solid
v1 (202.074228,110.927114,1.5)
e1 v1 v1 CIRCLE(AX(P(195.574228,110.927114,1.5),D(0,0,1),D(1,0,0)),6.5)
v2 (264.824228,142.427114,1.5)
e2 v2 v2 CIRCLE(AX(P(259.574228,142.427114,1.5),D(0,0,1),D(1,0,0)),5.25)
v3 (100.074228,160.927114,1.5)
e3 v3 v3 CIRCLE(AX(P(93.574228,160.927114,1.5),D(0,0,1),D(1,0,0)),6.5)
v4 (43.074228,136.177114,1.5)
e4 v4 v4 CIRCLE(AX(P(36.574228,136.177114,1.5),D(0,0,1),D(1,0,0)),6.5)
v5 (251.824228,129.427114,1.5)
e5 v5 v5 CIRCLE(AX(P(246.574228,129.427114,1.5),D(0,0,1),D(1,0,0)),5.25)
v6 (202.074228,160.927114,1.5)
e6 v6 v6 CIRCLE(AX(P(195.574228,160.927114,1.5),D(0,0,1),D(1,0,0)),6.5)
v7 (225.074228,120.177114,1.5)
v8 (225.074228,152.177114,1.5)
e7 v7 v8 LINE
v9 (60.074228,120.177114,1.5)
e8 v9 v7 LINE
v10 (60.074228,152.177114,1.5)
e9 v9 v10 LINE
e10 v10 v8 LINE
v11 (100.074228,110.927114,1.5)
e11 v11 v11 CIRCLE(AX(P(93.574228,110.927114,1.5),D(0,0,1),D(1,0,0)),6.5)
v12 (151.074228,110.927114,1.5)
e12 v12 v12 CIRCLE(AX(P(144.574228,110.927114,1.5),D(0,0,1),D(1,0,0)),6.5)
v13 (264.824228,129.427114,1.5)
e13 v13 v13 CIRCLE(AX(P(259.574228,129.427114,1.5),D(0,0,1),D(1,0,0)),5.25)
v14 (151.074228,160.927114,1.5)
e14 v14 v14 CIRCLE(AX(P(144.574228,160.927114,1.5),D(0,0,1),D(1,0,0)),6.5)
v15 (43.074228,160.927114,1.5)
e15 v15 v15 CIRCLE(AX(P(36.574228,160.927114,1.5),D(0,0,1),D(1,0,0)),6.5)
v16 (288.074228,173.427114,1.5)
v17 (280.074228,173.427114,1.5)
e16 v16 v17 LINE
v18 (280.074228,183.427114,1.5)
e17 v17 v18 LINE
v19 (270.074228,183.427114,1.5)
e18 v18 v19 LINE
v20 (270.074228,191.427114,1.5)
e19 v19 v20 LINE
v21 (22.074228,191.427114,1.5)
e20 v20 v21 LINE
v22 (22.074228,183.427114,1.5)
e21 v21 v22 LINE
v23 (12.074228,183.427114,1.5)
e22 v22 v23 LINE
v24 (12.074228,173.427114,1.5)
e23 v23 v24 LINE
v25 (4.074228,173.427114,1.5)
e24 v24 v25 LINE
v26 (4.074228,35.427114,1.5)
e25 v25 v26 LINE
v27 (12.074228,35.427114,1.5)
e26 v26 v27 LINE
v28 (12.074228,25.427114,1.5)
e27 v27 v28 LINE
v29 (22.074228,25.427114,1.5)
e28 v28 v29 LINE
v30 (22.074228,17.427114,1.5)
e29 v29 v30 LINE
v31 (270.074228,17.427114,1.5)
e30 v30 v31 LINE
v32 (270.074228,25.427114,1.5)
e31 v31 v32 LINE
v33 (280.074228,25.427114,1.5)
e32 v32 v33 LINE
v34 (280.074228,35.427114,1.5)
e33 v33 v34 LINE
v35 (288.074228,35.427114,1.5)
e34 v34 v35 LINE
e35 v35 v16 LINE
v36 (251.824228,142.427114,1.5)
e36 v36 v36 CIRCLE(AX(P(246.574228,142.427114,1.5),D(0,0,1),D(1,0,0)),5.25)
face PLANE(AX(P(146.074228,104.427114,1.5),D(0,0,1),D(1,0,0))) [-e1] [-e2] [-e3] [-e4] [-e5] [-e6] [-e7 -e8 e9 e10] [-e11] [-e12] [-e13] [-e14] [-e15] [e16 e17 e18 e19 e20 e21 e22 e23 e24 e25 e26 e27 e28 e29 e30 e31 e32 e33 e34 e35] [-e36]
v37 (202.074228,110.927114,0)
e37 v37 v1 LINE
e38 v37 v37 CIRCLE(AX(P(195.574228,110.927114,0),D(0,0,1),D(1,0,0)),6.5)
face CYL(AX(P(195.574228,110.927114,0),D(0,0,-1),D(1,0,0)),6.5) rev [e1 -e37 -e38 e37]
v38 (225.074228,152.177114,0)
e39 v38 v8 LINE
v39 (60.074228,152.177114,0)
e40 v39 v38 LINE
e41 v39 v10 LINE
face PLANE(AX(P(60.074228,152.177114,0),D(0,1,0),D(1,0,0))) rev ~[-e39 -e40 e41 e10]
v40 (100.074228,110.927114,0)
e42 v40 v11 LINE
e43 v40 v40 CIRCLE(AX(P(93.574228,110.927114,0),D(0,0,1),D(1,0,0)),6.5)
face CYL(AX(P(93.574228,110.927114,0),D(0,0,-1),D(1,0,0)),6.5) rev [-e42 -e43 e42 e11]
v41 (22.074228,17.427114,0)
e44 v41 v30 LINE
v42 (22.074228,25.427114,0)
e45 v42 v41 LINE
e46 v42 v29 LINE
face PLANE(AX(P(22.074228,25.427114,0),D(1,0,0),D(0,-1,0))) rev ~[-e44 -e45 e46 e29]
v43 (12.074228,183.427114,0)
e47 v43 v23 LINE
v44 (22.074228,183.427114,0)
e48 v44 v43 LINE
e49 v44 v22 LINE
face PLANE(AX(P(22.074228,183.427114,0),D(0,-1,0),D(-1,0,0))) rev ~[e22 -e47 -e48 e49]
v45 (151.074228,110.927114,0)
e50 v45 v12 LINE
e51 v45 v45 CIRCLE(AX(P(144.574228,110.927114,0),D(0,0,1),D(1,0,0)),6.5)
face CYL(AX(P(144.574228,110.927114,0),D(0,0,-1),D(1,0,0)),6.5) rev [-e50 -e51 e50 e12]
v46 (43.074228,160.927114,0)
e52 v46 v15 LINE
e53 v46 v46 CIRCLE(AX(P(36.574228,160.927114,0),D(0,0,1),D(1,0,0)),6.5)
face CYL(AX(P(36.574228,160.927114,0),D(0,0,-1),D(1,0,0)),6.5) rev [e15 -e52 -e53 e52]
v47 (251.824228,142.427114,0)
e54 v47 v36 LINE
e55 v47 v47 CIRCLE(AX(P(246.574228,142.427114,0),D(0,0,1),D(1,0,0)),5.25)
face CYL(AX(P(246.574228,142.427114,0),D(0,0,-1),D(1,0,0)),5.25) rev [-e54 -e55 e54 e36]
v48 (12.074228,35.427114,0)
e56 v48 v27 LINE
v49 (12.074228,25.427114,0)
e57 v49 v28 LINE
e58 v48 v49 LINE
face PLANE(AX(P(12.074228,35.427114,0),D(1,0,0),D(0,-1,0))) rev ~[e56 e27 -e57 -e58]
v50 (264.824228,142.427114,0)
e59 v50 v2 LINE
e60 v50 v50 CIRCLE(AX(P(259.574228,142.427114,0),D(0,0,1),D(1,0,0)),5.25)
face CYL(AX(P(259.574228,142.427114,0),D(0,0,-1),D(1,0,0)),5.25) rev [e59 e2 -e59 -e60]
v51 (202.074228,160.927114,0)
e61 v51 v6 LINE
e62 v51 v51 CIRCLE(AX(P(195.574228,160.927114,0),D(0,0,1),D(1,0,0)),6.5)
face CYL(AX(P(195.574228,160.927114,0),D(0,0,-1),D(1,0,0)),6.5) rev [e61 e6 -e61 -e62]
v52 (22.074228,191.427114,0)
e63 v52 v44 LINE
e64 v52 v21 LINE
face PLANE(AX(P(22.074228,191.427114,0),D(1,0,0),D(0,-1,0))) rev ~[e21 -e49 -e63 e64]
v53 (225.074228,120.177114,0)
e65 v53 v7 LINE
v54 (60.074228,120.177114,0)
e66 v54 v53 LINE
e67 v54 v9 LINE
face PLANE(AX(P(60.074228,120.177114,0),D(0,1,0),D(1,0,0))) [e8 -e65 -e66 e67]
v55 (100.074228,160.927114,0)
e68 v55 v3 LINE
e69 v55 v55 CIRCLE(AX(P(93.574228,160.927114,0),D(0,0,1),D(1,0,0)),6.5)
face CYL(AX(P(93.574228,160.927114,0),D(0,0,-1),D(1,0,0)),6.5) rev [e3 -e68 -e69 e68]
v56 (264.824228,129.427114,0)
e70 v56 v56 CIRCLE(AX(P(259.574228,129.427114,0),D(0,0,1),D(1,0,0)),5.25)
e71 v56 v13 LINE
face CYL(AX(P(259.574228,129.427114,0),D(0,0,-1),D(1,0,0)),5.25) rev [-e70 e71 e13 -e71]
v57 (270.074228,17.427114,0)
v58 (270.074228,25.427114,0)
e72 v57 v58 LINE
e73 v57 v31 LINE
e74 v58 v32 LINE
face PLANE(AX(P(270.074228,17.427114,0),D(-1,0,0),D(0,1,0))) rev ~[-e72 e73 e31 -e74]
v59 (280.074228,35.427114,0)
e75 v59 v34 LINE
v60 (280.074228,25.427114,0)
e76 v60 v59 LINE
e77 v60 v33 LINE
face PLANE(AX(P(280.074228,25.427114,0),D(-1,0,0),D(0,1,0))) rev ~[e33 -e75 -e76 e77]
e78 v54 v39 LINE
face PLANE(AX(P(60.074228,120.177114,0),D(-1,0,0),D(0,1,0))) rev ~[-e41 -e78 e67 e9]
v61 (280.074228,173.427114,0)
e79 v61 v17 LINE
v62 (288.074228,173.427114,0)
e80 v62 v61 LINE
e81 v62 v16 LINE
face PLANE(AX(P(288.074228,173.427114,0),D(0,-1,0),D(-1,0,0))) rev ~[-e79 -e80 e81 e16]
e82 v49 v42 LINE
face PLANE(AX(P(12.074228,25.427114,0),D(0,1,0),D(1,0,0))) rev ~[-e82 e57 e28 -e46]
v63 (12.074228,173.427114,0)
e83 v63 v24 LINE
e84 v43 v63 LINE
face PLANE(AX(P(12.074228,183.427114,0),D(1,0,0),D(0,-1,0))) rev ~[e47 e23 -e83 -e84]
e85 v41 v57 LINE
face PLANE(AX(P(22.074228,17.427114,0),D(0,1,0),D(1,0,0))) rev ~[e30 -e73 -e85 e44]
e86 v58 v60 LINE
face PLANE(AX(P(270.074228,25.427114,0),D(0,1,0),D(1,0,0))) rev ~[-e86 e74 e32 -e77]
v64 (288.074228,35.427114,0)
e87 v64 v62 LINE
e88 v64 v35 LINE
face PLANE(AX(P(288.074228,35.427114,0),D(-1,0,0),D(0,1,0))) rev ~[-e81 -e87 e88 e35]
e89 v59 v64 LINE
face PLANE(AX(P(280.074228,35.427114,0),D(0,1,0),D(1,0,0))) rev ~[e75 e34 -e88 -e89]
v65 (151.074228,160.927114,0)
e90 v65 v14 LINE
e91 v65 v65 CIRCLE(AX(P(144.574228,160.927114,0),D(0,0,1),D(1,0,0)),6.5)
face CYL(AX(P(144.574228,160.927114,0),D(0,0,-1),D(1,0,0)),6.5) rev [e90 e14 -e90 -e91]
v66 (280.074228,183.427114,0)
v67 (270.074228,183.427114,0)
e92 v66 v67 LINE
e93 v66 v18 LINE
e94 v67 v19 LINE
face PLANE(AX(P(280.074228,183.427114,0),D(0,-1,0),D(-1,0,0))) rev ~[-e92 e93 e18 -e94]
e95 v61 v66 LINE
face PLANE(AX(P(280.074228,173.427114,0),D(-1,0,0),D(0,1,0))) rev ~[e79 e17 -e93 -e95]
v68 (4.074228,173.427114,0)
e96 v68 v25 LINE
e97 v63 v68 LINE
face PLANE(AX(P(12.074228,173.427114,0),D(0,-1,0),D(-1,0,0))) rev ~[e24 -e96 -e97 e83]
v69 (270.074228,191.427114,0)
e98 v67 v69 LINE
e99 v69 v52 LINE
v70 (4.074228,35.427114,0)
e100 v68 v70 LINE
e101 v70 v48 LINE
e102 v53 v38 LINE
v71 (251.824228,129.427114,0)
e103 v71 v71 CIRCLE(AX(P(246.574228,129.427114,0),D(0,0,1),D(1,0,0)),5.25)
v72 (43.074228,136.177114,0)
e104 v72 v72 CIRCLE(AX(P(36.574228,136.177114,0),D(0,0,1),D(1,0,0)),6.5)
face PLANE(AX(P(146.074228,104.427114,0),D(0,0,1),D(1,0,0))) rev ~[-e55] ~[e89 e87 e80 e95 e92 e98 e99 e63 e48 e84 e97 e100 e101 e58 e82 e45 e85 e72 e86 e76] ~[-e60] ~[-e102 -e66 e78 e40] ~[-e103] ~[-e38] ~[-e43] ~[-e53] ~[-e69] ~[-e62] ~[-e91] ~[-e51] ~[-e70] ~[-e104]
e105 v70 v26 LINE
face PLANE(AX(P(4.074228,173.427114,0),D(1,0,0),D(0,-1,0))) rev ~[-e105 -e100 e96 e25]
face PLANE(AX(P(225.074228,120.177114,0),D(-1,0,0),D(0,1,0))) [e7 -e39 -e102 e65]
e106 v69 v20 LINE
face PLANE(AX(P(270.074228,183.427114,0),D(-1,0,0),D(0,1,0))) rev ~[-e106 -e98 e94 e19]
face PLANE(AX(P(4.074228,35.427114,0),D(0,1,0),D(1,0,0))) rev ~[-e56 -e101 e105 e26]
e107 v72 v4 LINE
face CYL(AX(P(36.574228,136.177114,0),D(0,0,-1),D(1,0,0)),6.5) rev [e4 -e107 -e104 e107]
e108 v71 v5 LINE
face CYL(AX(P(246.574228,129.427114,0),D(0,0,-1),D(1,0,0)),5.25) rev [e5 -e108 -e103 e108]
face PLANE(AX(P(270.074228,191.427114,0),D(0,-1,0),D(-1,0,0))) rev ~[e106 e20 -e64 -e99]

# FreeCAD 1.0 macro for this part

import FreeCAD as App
import Part
import Sketcher
from FreeCAD import Vector

doc = App.newDocument("Part")
body = doc.addObject("PartDesign::Body", "Body")

# Sketch on XY plane
sketch1 = doc.addObject("Sketcher::SketchObject", "Sketch")
body.addObject(sketch1)
sketch1.AttachmentSupport = (doc.XY_Plane, [""])
sketch1.MapMode = "FlatFace"
sketch1.addGeometry([
    Part.LineSegment(Vector(270, 25, 0), Vector(280, 25, 0)),  # 0
    Part.LineSegment(Vector(280, 25, 0), Vector(280, 35, 0)),  # 1
    Part.LineSegment(Vector(280, 35, 0), Vector(288, 35, 0)),  # 2
    Part.LineSegment(Vector(288, 35, 0), Vector(288, 173, 0)),  # 3
    Part.LineSegment(Vector(288, 173, 0), Vector(280, 173, 0)),  # 4
    Part.LineSegment(Vector(280, 173, 0), Vector(280, 183, 0)),  # 5
    Part.LineSegment(Vector(280, 183, 0), Vector(270, 183, 0)),  # 6
    Part.LineSegment(Vector(270, 183, 0), Vector(270, 191, 0)),  # 7
    Part.LineSegment(Vector(270, 191, 0), Vector(22, 191, 0)),  # 8
    Part.LineSegment(Vector(22, 191, 0), Vector(22, 183, 0)),  # 9
    Part.LineSegment(Vector(22, 183, 0), Vector(12, 183, 0)),  # 10
    Part.LineSegment(Vector(12, 183, 0), Vector(12, 173, 0)),  # 11
    Part.LineSegment(Vector(12, 173, 0), Vector(4, 173, 0)),  # 12
    Part.LineSegment(Vector(4, 173, 0), Vector(4, 35, 0)),  # 13
    Part.LineSegment(Vector(4, 35, 0), Vector(12, 35, 0)),  # 14
    Part.LineSegment(Vector(12, 35, 0), Vector(12, 25, 0)),  # 15
    Part.LineSegment(Vector(12, 25, 0), Vector(22, 25, 0)),  # 16
    Part.LineSegment(Vector(22, 25, 0), Vector(22, 17, 0)),  # 17
    Part.LineSegment(Vector(22, 17, 0), Vector(270, 17, 0)),  # 18
    Part.LineSegment(Vector(270, 17, 0), Vector(270, 25, 0)),  # 19
    Part.Circle(Vector(94, 111, 0), Vector(0, 0, 1), 6),  # 20
    Part.Circle(Vector(145, 111, 0), Vector(0, 0, 1), 6),  # 21
    Part.Circle(Vector(196, 111, 0), Vector(0, 0, 1), 6),  # 22
    Part.Circle(Vector(247, 129, 0), Vector(0, 0, 1), 5),  # 23
    Part.Circle(Vector(260, 129, 0), Vector(0, 0, 1), 5),  # 24
    Part.Circle(Vector(37, 136, 0), Vector(0, 0, 1), 6),  # 25
    Part.LineSegment(Vector(225, 120, 0), Vector(60, 120, 0)),  # 26
    Part.LineSegment(Vector(60, 120, 0), Vector(60, 152, 0)),  # 27
    Part.LineSegment(Vector(60, 152, 0), Vector(225, 152, 0)),  # 28
    Part.LineSegment(Vector(225, 152, 0), Vector(225, 120, 0)),  # 29
    Part.Circle(Vector(37, 161, 0), Vector(0, 0, 1), 6),  # 30
    Part.Circle(Vector(94, 161, 0), Vector(0, 0, 1), 6),  # 31
    Part.Circle(Vector(145, 161, 0), Vector(0, 0, 1), 6),  # 32
    Part.Circle(Vector(247, 142, 0), Vector(0, 0, 1), 5),  # 33
    Part.Circle(Vector(260, 142, 0), Vector(0, 0, 1), 5),  # 34
    Part.Circle(Vector(196, 161, 0), Vector(0, 0, 1), 6),  # 35
], False)
sketch1.addConstraint([
    Sketcher.Constraint("Coincident", 0, 2, 1, 1),
    Sketcher.Constraint("Coincident", 1, 2, 2, 1),
    Sketcher.Constraint("Coincident", 2, 2, 3, 1),
    Sketcher.Constraint("Coincident", 3, 2, 4, 1),
    Sketcher.Constraint("Coincident", 4, 2, 5, 1),
    Sketcher.Constraint("Coincident", 5, 2, 6, 1),
    Sketcher.Constraint("Coincident", 6, 2, 7, 1),
    Sketcher.Constraint("Coincident", 7, 2, 8, 1),
    Sketcher.Constraint("Coincident", 8, 2, 9, 1),
    Sketcher.Constraint("Coincident", 9, 2, 10, 1),
    Sketcher.Constraint("Coincident", 10, 2, 11, 1),
    Sketcher.Constraint("Coincident", 11, 2, 12, 1),
    Sketcher.Constraint("Coincident", 12, 2, 13, 1),
    Sketcher.Constraint("Coincident", 13, 2, 14, 1),
    Sketcher.Constraint("Coincident", 14, 2, 15, 1),
    Sketcher.Constraint("Coincident", 15, 2, 16, 1),
    Sketcher.Constraint("Coincident", 16, 2, 17, 1),
    Sketcher.Constraint("Coincident", 17, 2, 18, 1),
    Sketcher.Constraint("Coincident", 18, 2, 19, 1),
    Sketcher.Constraint("Coincident", 19, 2, 0, 1),
    Sketcher.Constraint("Coincident", 26, 2, 27, 1),
    Sketcher.Constraint("Coincident", 27, 2, 28, 1),
    Sketcher.Constraint("Coincident", 28, 2, 29, 1),
    Sketcher.Constraint("Coincident", 29, 2, 26, 1),
    Sketcher.Constraint("Horizontal", 0),
    Sketcher.Constraint("Vertical", 1),
    Sketcher.Constraint("Horizontal", 2),
    Sketcher.Constraint("Vertical", 3),
    Sketcher.Constraint("Horizontal", 4),
    Sketcher.Constraint("Vertical", 5),
    Sketcher.Constraint("Horizontal", 6),
    Sketcher.Constraint("Vertical", 7),
    Sketcher.Constraint("Horizontal", 8),
    Sketcher.Constraint("Vertical", 9),
    Sketcher.Constraint("Horizontal", 10),
    Sketcher.Constraint("Vertical", 11),
    Sketcher.Constraint("Horizontal", 12),
    Sketcher.Constraint("Vertical", 13),
    Sketcher.Constraint("Horizontal", 14),
    Sketcher.Constraint("Vertical", 15),
    Sketcher.Constraint("Horizontal", 16),
    Sketcher.Constraint("Vertical", 17),
    Sketcher.Constraint("Horizontal", 18),
    Sketcher.Constraint("Vertical", 19),
    Sketcher.Constraint("Horizontal", 26),
    Sketcher.Constraint("Vertical", 27),
    Sketcher.Constraint("Horizontal", 28),
    Sketcher.Constraint("Vertical", 29),
    Sketcher.Constraint("Equal", 20, 21),
    Sketcher.Constraint("Equal", 21, 22),
    Sketcher.Constraint("Equal", 23, 24),
    Sketcher.Constraint("Equal", 22, 25),
    Sketcher.Constraint("Equal", 25, 30),
    Sketcher.Constraint("Equal", 30, 31),
    Sketcher.Constraint("Equal", 31, 32),
    Sketcher.Constraint("Equal", 24, 33),
    Sketcher.Constraint("Equal", 33, 34),
    Sketcher.Constraint("Equal", 32, 35),
    Sketcher.Constraint("Horizontal", 20, 3, 21, 3),
    Sketcher.Constraint("Horizontal", 21, 3, 22, 3),
    Sketcher.Constraint("Horizontal", 23, 3, 24, 3),
    Sketcher.Constraint("Horizontal", 30, 3, 31, 3),
    Sketcher.Constraint("Horizontal", 31, 3, 32, 3),
    Sketcher.Constraint("Horizontal", 33, 3, 34, 3),
    Sketcher.Constraint("Horizontal", 32, 3, 35, 3),
    Sketcher.Constraint("Horizontal", 6, 2, 9, 2),
    Sketcher.Constraint("Horizontal", 4, 2, 11, 2),
    Sketcher.Constraint("Horizontal", 2, 2, 13, 2),
    Sketcher.Constraint("Horizontal", 0, 2, 15, 2),
    Sketcher.Constraint("Vertical", 25, 3, 30, 3),
    Sketcher.Constraint("Vertical", 20, 3, 31, 3),
    Sketcher.Constraint("Vertical", 21, 3, 32, 3),
    Sketcher.Constraint("Vertical", 23, 3, 33, 3),
    Sketcher.Constraint("Vertical", 24, 3, 34, 3),
    Sketcher.Constraint("Vertical", 22, 3, 35, 3),
    Sketcher.Constraint("Vertical", 1, 2, 4, 2),
    Sketcher.Constraint("Vertical", 11, 2, 14, 2),
    Sketcher.Constraint("Vertical", 9, 2, 16, 2),
    Sketcher.Constraint("Vertical", 7, 2, 18, 2),
    Sketcher.Constraint("Equal", 6, 10),
    Sketcher.Constraint("Equal", 4, 12),
    Sketcher.Constraint("Equal", 16, 1),
    Sketcher.Constraint("Equal", 1, 5),
    Sketcher.Constraint("Equal", 14, 7),
    Sketcher.Constraint("Equal", 9, 17),
    Sketcher.Constraint("Diameter", 20, 13.0),
    Sketcher.Constraint("Diameter", 23, 10.5),
    Sketcher.Constraint("DistanceX", 0, 1, 0, 2, 10.0),
    Sketcher.Constraint("DistanceX", 2, 1, 2, 2, 8.0),
    Sketcher.Constraint("DistanceX", 8, 2, 8, 1, 248.0),
    Sketcher.Constraint("DistanceX", 26, 2, 26, 1, 165.0),
    Sketcher.Constraint("DistanceY", 3, 1, 3, 2, 138.0),
    Sketcher.Constraint("DistanceY", 27, 1, 27, 2, 32.0),
    Sketcher.Constraint("DistanceX", 20, 3, 21, 3, 51.0),
    Sketcher.Constraint("DistanceX", 21, 3, 22, 3, 51.0),
    Sketcher.Constraint("DistanceX", 22, 3, 23, 3, 51.0),
    Sketcher.Constraint("DistanceX", 23, 3, 24, 3, 13.0),
    Sketcher.Constraint("DistanceX", 25, 3, 20, 3, 57.0),
    Sketcher.Constraint("DistanceY", 20, 3, 30, 3, 50.0),
    Sketcher.Constraint("DistanceY", 23, 3, 33, 3, 13.0),
    Sketcher.Constraint("DistanceY", 0, 2, 24, 3, 104.0),
    Sketcher.Constraint("DistanceY", 26, 2, 25, 3, 16.0),
    Sketcher.Constraint("DistanceX", 11, 2, 26, 2, 48.0),
    Sketcher.Constraint("DistanceY", 22, 3, 23, 3, 18.5),
    Sketcher.Constraint("DistanceX", 24, 3, 0, 2, 20.5),
    Sketcher.Constraint("DistanceY", 20, 3, 25, 3, 25.25),
    Sketcher.Constraint("DistanceX", -1, 1, 20, 3, 93.574228),
    Sketcher.Constraint("DistanceY", -1, 1, 20, 3, 110.927114),
])
pad1 = doc.addObject("PartDesign::Pad", "Pad")
body.addObject(pad1)
pad1.Profile = sketch1
pad1.Length = 1.5

doc.recompute()
